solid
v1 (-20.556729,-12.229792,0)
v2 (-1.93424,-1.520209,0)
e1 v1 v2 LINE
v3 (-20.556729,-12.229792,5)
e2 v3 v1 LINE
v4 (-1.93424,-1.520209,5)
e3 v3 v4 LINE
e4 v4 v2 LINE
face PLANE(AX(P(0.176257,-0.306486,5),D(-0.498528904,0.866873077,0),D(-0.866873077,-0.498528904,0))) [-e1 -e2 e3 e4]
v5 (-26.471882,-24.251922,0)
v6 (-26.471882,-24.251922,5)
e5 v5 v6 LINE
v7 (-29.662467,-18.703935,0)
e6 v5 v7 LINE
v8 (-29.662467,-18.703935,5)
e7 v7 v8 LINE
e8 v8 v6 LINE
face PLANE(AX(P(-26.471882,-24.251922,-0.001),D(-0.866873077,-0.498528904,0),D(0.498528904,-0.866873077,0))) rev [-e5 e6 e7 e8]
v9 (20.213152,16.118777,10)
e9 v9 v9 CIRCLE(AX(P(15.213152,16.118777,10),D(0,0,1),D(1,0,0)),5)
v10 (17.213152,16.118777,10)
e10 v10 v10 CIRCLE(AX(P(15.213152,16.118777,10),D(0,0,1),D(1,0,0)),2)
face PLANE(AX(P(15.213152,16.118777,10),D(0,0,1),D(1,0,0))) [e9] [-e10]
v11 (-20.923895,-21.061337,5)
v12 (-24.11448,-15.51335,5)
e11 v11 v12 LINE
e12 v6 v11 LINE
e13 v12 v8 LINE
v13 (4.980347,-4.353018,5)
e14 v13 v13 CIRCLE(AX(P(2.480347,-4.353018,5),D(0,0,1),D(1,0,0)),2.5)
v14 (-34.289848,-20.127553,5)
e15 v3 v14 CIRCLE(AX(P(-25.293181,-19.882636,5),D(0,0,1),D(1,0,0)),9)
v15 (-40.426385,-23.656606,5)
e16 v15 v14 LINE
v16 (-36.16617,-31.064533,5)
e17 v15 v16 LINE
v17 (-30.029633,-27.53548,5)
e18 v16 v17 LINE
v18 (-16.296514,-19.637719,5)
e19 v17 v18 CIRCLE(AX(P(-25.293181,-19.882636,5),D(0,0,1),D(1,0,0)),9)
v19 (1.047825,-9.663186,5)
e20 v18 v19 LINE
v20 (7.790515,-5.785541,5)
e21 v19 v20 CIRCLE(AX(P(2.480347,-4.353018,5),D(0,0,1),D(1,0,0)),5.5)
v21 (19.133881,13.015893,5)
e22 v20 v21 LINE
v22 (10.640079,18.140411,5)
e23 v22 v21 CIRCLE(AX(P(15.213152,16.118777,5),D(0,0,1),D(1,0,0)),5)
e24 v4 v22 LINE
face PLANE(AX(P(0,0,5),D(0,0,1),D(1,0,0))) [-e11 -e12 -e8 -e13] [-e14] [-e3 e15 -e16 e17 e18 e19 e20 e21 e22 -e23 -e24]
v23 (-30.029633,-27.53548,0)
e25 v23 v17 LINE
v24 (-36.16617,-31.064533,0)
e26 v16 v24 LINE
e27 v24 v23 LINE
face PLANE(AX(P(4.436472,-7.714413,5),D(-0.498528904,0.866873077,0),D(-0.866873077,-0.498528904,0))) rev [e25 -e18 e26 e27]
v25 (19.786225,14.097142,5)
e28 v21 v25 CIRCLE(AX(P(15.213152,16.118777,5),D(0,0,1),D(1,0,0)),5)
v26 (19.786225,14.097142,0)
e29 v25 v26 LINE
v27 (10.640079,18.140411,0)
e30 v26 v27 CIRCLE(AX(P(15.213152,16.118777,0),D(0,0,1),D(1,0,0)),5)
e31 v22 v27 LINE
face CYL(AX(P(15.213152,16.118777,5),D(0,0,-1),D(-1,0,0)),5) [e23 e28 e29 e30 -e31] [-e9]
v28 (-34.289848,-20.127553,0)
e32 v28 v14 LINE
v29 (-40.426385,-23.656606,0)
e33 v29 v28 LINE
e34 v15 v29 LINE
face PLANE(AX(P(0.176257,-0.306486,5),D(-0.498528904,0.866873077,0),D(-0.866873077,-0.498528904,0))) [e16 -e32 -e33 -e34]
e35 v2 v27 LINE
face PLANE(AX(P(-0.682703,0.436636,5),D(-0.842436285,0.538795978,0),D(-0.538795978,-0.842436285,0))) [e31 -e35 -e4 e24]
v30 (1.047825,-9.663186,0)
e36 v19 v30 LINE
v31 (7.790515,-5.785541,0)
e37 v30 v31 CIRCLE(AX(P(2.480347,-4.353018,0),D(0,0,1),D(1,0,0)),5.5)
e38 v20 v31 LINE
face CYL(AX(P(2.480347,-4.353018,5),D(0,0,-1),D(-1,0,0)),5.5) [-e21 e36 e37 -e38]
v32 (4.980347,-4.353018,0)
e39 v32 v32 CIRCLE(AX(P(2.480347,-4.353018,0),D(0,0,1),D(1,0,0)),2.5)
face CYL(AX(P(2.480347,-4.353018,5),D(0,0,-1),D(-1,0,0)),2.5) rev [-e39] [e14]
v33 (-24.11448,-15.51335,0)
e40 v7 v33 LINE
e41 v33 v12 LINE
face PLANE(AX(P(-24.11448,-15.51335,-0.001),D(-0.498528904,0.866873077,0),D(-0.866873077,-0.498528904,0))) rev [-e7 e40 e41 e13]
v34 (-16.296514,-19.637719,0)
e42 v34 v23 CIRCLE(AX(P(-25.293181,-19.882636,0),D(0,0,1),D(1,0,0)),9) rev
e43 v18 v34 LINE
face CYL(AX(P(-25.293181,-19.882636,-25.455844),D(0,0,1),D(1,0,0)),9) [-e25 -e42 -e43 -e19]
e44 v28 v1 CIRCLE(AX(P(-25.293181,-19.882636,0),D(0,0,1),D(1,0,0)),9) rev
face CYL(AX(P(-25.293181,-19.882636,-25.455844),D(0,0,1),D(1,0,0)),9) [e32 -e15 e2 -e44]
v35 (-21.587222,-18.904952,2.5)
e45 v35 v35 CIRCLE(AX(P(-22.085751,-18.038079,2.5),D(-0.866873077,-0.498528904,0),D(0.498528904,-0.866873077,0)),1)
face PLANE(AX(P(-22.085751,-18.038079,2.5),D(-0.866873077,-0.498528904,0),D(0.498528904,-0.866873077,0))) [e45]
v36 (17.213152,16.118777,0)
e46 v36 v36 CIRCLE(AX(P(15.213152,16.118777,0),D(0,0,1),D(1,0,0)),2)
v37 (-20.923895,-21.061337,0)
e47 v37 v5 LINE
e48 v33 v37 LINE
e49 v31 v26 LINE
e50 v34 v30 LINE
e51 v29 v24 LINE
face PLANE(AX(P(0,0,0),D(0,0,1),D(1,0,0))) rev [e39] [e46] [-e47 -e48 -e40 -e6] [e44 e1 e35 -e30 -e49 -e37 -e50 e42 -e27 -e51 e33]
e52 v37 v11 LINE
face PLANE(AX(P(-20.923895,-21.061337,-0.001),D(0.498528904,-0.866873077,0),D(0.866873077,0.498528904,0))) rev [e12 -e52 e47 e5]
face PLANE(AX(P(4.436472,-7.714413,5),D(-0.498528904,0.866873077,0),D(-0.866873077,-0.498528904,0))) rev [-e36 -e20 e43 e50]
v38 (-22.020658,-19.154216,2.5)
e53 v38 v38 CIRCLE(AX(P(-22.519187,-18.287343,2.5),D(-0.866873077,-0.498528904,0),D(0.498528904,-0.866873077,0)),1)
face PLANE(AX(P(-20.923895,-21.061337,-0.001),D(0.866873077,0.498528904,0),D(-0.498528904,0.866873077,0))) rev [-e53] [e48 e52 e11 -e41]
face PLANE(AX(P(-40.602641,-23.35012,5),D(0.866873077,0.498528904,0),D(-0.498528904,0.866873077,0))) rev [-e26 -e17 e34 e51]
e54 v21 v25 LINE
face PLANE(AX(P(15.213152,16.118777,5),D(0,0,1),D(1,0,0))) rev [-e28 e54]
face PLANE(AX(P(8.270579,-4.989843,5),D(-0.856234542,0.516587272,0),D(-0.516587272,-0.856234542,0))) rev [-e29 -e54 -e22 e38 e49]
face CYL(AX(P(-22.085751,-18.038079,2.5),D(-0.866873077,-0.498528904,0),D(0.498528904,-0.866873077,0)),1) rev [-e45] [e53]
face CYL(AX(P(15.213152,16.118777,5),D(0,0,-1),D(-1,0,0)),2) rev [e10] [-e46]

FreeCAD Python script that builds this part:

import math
import FreeCAD as App
import Part
import Sketcher

V = App.Vector

doc = App.newDocument("Part")
params = doc.addObject("Spreadsheet::Sheet", "Params")
for row, (alias, value) in enumerate([
    ("sketch1_diameter", "5 mm"),
    ("sketch1_diameter2", "4 mm"),
    ("sketch1_radius", "5 mm"),
    ("sketch1_radius2", "5.5 mm"),
    ("pad1_length", "5 mm"),
    ("sketch2_diameter", "18 mm"),
    ("pad2_length", "5 mm"),
    ("sketch3_length", "6.4 mm"),
    ("sketch4_diameter", "2 mm"),
    ("pocket2_length", "0.5 mm"),
    ("sketch5_diameter", "10 mm"),
    ("sketch5_diameter2", "4 mm"),
    ("pad3_length", "5 mm"),
], start=1):
    params.set(f"A{row}", alias)
    params.set(f"B{row}", "=" + value)
    params.setAlias(f"B{row}", alias)

body = doc.addObject("PartDesign::Body", "Body")

sketch1 = body.newObject("Sketcher::SketchObject", "Sketch")
sketch1.AttachmentSupport = (doc.getObject("XY_Plane"), [""])
sketch1.MapMode = "FlatFace"
sketch1.addGeometry([
    Part.LineSegment(V(7.8, -5.8, 0), V(19.8, 14.1, 0)),
    Part.ArcOfCircle(Part.Circle(V(15.2, 16.1, 0), V(0, 0, 1), 5), math.radians(-24), math.radians(156)),
    Part.LineSegment(V(10.6, 18.1, 0), V(-1.9, -1.5, 0)),
    Part.LineSegment(V(-1.9, -1.5, 0), V(-40.4, -23.7, 0)),
    Part.LineSegment(V(-40.4, -23.7, 0), V(-36.2, -31.1, 0)),
    Part.LineSegment(V(-36.2, -31.1, 0), V(1, -9.7, 0)),
    Part.ArcOfCircle(Part.Circle(V(2.5, -4.4, 0), V(0, 0, 1), 5.5), math.radians(-105), math.radians(-15)),
    Part.Circle(V(2.5, -4.4, 0), V(0, 0, 1), 2.5),
    Part.Circle(V(15.2, 16.1, 0), V(0, 0, 1), 2),
], False)
sketch1.addConstraint([
    Sketcher.Constraint("Coincident", 0, 2, 1, 1),
    Sketcher.Constraint("Coincident", 1, 2, 2, 1),
    Sketcher.Constraint("Coincident", 2, 2, 3, 1),
    Sketcher.Constraint("Coincident", 3, 2, 4, 1),
    Sketcher.Constraint("Coincident", 4, 2, 5, 1),
    Sketcher.Constraint("Coincident", 5, 2, 6, 1),
    Sketcher.Constraint("Coincident", 6, 2, 0, 1),
    Sketcher.Constraint("Coincident", 7, 3, 6, 3),
    Sketcher.Constraint("Coincident", 8, 3, 1, 3),
    Sketcher.Constraint("Perpendicular", 3, 4),
    Sketcher.Constraint("Perpendicular", 4, 5),
    Sketcher.Constraint("Diameter", 7, 5.0),
    Sketcher.Constraint("Diameter", 8, 4.0),
    Sketcher.Constraint("Radius", 1, 5.0),
    Sketcher.Constraint("Radius", 6, 5.5),
    Sketcher.Constraint("Distance", 5, 42.929),
    Sketcher.Constraint("Distance", 0, 23.221071),
    Sketcher.Constraint("DistanceX", -1, 1, 1, 3, 15.213152),
    Sketcher.Constraint("DistanceY", 6, 3, -1, 1, 4.353018),
    Sketcher.Constraint("DistanceX", -1, 1, 1, 2, 10.640079),
    Sketcher.Constraint("DistanceY", -1, 1, 1, 2, 18.140411),
    Sketcher.Constraint("DistanceX", 2, 2, -1, 1, 1.93424),
    Sketcher.Constraint("DistanceY", 2, 2, -1, 1, 1.520209),
    Sketcher.Constraint("DistanceX", 4, 2, -1, 1, 36.16617),
    Sketcher.Constraint("DistanceY", 6, 2, -1, 1, 5.785541),
    Sketcher.Constraint("DistanceY", 6, 3, 0, 2, 18.45016),
    Sketcher.Constraint("DistanceX", 5, 2, 6, 2, 6.74269),
])
sketch1.setExpression("Constraints[11]", "Params.sketch1_diameter")
sketch1.setExpression("Constraints[12]", "Params.sketch1_diameter2")
sketch1.setExpression("Constraints[13]", "Params.sketch1_radius")
sketch1.setExpression("Constraints[14]", "Params.sketch1_radius2")
pad1 = body.newObject("PartDesign::Pad", "Pad")
pad1.Profile = sketch1
pad1.setExpression("Length", "Params.pad1_length")

sketch2 = body.newObject("Sketcher::SketchObject", "Sketch001")
sketch2.AttachmentSupport = (doc.getObject("XY_Plane"), [""])
sketch2.MapMode = "FlatFace"
sketch2.AttachmentOffset = App.Placement(V(0, 0, 5), App.Rotation())
sketch2.addGeometry(Part.Circle(V(-25, -20, 0), V(0, 0, 1), 9), False)
sketch2.addConstraint([
    Sketcher.Constraint("Diameter", 0, 18.0),
    Sketcher.Constraint("DistanceX", 0, 3, -1, 1, 25.293181),
    Sketcher.Constraint("DistanceY", 0, 3, -1, 1, 19.882636),
])
sketch2.setExpression("Constraints[0]", "Params.sketch2_diameter")
pad2 = body.newObject("PartDesign::Pad", "Pad001")
pad2.Profile = sketch2
pad2.setExpression("Length", "Params.pad2_length")
pad2.Reversed = True

sketch3 = body.newObject("Sketcher::SketchObject", "Sketch002")
sketch3.AttachmentSupport = (doc.getObject("XY_Plane"), [""])
sketch3.MapMode = "FlatFace"
sketch3.AttachmentOffset = App.Placement(V(0, 0, 5), App.Rotation())
sketch3.addGeometry([
    Part.LineSegment(V(-21, -21, 0), V(-24, -16, 0)),
    Part.LineSegment(V(-24, -16, 0), V(-30, -19, 0)),
    Part.LineSegment(V(-30, -19, 0), V(-26, -24, 0)),
    Part.LineSegment(V(-26, -24, 0), V(-21, -21, 0)),
], False)
sketch3.addConstraint([
    Sketcher.Constraint("Coincident", 0, 2, 1, 1),
    Sketcher.Constraint("Coincident", 1, 2, 2, 1),
    Sketcher.Constraint("Coincident", 2, 2, 3, 1),
    Sketcher.Constraint("Coincident", 3, 2, 0, 1),
    Sketcher.Constraint("Perpendicular", 0, 1),
    Sketcher.Constraint("Perpendicular", 1, 2),
    Sketcher.Constraint("Perpendicular", 2, 3),
    Sketcher.Constraint("Equal", 0, 1),
    Sketcher.Constraint("Distance", 0, 6.4),
    Sketcher.Constraint("DistanceX", 0, 2, -1, 1, 24.11448),
    Sketcher.Constraint("DistanceY", 0, 2, -1, 1, 15.51335),
    Sketcher.Constraint("DistanceX", 1, 2, -1, 1, 29.662467),
])
sketch3.setExpression("Constraints[8]", "Params.sketch3_length")
pocket1 = body.newObject("PartDesign::Pocket", "Pocket")
pocket1.Profile = sketch3
pocket1.Type = "UpToFirst"

sketch4 = body.newObject("Sketcher::SketchObject", "Sketch003")
sketch4.Placement = App.Placement(V(-24.825551, -14.276894, 0), App.Rotation(V(0, 0, 1), V(-0.498528904, 0.866873077, 0), V(-0.866873077, -0.498528904, 0), "ZXY"))
sketch4.addGeometry(Part.Circle(V(2.5, -4.6, 0), V(0, 0, 1), 1), False)
sketch4.addConstraint([
    Sketcher.Constraint("Diameter", 0, 2.0),
    Sketcher.Constraint("DistanceX", -1, 1, 0, 3, 2.5),
    Sketcher.Constraint("DistanceY", 0, 3, -1, 1, 4.62634),
])
sketch4.setExpression("Constraints[0]", "Params.sketch4_diameter")
pocket2 = body.newObject("PartDesign::Pocket", "Pocket001")
pocket2.Profile = sketch4
pocket2.setExpression("Length", "Params.pocket2_length")

sketch5 = body.newObject("Sketcher::SketchObject", "Sketch004")
sketch5.AttachmentSupport = (doc.getObject("XY_Plane"), [""])
sketch5.MapMode = "FlatFace"
sketch5.AttachmentOffset = App.Placement(V(0, 0, 5), App.Rotation())
sketch5.addGeometry([
    Part.Circle(V(15.2, 16.1, 0), V(0, 0, 1), 5),
    Part.Circle(V(15.2, 16.1, 0), V(0, 0, 1), 2),
], False)
sketch5.addConstraint([
    Sketcher.Constraint("Coincident", 1, 3, 0, 3),
    Sketcher.Constraint("Diameter", 0, 10.0),
    Sketcher.Constraint("Diameter", 1, 4.0),
    Sketcher.Constraint("DistanceX", -1, 1, 0, 3, 15.213152),
    Sketcher.Constraint("DistanceY", -1, 1, 0, 3, 16.118777),
])
sketch5.setExpression("Constraints[1]", "Params.sketch5_diameter")
sketch5.setExpression("Constraints[2]", "Params.sketch5_diameter2")
pad3 = body.newObject("PartDesign::Pad", "Pad002")
pad3.Profile = sketch5
pad3.setExpression("Length", "Params.pad3_length")

doc.recompute()
